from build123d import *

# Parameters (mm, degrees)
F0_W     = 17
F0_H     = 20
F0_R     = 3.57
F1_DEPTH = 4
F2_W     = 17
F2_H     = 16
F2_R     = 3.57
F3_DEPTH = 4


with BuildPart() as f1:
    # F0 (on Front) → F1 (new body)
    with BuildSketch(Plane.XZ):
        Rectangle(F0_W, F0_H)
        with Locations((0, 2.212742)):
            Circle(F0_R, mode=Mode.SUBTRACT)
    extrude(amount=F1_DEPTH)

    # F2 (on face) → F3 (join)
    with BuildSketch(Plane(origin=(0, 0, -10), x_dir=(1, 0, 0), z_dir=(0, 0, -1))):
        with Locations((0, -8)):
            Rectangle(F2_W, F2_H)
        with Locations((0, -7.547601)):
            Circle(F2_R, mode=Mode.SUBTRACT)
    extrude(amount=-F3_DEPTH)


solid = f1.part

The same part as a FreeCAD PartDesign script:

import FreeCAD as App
import Part
import Sketcher
Q = App.Units.Quantity

doc = App.newDocument("Part")
body = doc.addObject("PartDesign::Body", "Body")

# Sketch on XZ plane
sketch1 = body.newObject("Sketcher::SketchObject", "Sketch")
sketch1.AttachmentSupport = (doc.getObject("XZ_Plane"), [""])
sketch1.MapMode = "FlatFace"
sketch1.addGeometry([
    Part.LineSegment(App.Vector(-8.5, 10, 0), App.Vector(-8.5, -10, 0)),  # 0
    Part.LineSegment(App.Vector(-8.5, -10, 0), App.Vector(8.5, -10, 0)),  # 1
    Part.LineSegment(App.Vector(8.5, -10, 0), App.Vector(8.5, 10, 0)),  # 2
    Part.LineSegment(App.Vector(8.5, 10, 0), App.Vector(-8.5, 10, 0)),  # 3
    Part.Circle(App.Vector(0, 2.212742, 0), App.Vector(0, 0, 1), 3.57),  # 4
], False)
sketch1.addConstraint([
    Sketcher.Constraint("Coincident", 0, 2, 1, 1),
    Sketcher.Constraint("Coincident", 1, 2, 2, 1),
    Sketcher.Constraint("Coincident", 2, 2, 3, 1),
    Sketcher.Constraint("Coincident", 3, 2, 0, 1),
    Sketcher.Constraint("Vertical", 0),
    Sketcher.Constraint("Horizontal", 1),
    Sketcher.Constraint("Vertical", 2),
    Sketcher.Constraint("Horizontal", 3),
    Sketcher.Constraint("Symmetric", 0, 2, 2, 2, -1, 1),
    Sketcher.Constraint("PointOnObject", 4, 3, -2),
    Sketcher.Constraint("Diameter", 4, Q("7.14 mm")),
    Sketcher.Constraint("DistanceX", 1, 1, 1, 2, Q("17 mm")),
    Sketcher.Constraint("DistanceY", 0, 2, 0, 1, Q("20 mm")),
    Sketcher.Constraint("DistanceY", -1, 1, 4, 3, Q("2.212742 mm")),
])
pad1 = body.newObject("PartDesign::Pad", "Pad")
pad1.Profile = sketch1
pad1.Length = 4

# Sketch on XY plane
sketch2 = body.newObject("Sketcher::SketchObject", "Sketch001")
sketch2.AttachmentSupport = (doc.getObject("XY_Plane"), [""])
sketch2.MapMode = "FlatFace"
sketch2.AttachmentOffset = App.Placement(App.Vector(0, 0, -10), App.Rotation())
sketch2.addGeometry([
    Part.LineSegment(App.Vector(-8.5, 0, 0), App.Vector(-8.5, 16, 0)),  # 0
    Part.LineSegment(App.Vector(-8.5, 16, 0), App.Vector(8.5, 16, 0)),  # 1
    Part.LineSegment(App.Vector(8.5, 16, 0), App.Vector(8.5, 0, 0)),  # 2
    Part.LineSegment(App.Vector(8.5, 0, 0), App.Vector(-8.5, 0, 0)),  # 3
    Part.Circle(App.Vector(0, 7.547601, 0), App.Vector(0, 0, 1), 3.57),  # 4
], False)
sketch2.addConstraint([
    Sketcher.Constraint("Coincident", 0, 2, 1, 1),
    Sketcher.Constraint("Coincident", 1, 2, 2, 1),
    Sketcher.Constraint("Coincident", 2, 2, 3, 1),
    Sketcher.Constraint("Coincident", 3, 2, 0, 1),
    Sketcher.Constraint("Vertical", 0),
    Sketcher.Constraint("Horizontal", 1),
    Sketcher.Constraint("Vertical", 2),
    Sketcher.Constraint("Horizontal", 3),
    Sketcher.Constraint("Symmetric", 2, 2, 3, 2, -1, 1),
    Sketcher.Constraint("PointOnObject", 4, 3, -2),
    Sketcher.Constraint("Diameter", 4, Q("7.14 mm")),
    Sketcher.Constraint("DistanceX", 1, 1, 1, 2, Q("17 mm")),
    Sketcher.Constraint("DistanceY", 0, 1, 0, 2, Q("16 mm")),
    Sketcher.Constraint("DistanceY", -1, 1, 4, 3, Q("7.547601 mm")),
])
pad2 = body.newObject("PartDesign::Pad", "Pad001")
pad2.Profile = sketch2
pad2.Length = 4

doc.recompute()
